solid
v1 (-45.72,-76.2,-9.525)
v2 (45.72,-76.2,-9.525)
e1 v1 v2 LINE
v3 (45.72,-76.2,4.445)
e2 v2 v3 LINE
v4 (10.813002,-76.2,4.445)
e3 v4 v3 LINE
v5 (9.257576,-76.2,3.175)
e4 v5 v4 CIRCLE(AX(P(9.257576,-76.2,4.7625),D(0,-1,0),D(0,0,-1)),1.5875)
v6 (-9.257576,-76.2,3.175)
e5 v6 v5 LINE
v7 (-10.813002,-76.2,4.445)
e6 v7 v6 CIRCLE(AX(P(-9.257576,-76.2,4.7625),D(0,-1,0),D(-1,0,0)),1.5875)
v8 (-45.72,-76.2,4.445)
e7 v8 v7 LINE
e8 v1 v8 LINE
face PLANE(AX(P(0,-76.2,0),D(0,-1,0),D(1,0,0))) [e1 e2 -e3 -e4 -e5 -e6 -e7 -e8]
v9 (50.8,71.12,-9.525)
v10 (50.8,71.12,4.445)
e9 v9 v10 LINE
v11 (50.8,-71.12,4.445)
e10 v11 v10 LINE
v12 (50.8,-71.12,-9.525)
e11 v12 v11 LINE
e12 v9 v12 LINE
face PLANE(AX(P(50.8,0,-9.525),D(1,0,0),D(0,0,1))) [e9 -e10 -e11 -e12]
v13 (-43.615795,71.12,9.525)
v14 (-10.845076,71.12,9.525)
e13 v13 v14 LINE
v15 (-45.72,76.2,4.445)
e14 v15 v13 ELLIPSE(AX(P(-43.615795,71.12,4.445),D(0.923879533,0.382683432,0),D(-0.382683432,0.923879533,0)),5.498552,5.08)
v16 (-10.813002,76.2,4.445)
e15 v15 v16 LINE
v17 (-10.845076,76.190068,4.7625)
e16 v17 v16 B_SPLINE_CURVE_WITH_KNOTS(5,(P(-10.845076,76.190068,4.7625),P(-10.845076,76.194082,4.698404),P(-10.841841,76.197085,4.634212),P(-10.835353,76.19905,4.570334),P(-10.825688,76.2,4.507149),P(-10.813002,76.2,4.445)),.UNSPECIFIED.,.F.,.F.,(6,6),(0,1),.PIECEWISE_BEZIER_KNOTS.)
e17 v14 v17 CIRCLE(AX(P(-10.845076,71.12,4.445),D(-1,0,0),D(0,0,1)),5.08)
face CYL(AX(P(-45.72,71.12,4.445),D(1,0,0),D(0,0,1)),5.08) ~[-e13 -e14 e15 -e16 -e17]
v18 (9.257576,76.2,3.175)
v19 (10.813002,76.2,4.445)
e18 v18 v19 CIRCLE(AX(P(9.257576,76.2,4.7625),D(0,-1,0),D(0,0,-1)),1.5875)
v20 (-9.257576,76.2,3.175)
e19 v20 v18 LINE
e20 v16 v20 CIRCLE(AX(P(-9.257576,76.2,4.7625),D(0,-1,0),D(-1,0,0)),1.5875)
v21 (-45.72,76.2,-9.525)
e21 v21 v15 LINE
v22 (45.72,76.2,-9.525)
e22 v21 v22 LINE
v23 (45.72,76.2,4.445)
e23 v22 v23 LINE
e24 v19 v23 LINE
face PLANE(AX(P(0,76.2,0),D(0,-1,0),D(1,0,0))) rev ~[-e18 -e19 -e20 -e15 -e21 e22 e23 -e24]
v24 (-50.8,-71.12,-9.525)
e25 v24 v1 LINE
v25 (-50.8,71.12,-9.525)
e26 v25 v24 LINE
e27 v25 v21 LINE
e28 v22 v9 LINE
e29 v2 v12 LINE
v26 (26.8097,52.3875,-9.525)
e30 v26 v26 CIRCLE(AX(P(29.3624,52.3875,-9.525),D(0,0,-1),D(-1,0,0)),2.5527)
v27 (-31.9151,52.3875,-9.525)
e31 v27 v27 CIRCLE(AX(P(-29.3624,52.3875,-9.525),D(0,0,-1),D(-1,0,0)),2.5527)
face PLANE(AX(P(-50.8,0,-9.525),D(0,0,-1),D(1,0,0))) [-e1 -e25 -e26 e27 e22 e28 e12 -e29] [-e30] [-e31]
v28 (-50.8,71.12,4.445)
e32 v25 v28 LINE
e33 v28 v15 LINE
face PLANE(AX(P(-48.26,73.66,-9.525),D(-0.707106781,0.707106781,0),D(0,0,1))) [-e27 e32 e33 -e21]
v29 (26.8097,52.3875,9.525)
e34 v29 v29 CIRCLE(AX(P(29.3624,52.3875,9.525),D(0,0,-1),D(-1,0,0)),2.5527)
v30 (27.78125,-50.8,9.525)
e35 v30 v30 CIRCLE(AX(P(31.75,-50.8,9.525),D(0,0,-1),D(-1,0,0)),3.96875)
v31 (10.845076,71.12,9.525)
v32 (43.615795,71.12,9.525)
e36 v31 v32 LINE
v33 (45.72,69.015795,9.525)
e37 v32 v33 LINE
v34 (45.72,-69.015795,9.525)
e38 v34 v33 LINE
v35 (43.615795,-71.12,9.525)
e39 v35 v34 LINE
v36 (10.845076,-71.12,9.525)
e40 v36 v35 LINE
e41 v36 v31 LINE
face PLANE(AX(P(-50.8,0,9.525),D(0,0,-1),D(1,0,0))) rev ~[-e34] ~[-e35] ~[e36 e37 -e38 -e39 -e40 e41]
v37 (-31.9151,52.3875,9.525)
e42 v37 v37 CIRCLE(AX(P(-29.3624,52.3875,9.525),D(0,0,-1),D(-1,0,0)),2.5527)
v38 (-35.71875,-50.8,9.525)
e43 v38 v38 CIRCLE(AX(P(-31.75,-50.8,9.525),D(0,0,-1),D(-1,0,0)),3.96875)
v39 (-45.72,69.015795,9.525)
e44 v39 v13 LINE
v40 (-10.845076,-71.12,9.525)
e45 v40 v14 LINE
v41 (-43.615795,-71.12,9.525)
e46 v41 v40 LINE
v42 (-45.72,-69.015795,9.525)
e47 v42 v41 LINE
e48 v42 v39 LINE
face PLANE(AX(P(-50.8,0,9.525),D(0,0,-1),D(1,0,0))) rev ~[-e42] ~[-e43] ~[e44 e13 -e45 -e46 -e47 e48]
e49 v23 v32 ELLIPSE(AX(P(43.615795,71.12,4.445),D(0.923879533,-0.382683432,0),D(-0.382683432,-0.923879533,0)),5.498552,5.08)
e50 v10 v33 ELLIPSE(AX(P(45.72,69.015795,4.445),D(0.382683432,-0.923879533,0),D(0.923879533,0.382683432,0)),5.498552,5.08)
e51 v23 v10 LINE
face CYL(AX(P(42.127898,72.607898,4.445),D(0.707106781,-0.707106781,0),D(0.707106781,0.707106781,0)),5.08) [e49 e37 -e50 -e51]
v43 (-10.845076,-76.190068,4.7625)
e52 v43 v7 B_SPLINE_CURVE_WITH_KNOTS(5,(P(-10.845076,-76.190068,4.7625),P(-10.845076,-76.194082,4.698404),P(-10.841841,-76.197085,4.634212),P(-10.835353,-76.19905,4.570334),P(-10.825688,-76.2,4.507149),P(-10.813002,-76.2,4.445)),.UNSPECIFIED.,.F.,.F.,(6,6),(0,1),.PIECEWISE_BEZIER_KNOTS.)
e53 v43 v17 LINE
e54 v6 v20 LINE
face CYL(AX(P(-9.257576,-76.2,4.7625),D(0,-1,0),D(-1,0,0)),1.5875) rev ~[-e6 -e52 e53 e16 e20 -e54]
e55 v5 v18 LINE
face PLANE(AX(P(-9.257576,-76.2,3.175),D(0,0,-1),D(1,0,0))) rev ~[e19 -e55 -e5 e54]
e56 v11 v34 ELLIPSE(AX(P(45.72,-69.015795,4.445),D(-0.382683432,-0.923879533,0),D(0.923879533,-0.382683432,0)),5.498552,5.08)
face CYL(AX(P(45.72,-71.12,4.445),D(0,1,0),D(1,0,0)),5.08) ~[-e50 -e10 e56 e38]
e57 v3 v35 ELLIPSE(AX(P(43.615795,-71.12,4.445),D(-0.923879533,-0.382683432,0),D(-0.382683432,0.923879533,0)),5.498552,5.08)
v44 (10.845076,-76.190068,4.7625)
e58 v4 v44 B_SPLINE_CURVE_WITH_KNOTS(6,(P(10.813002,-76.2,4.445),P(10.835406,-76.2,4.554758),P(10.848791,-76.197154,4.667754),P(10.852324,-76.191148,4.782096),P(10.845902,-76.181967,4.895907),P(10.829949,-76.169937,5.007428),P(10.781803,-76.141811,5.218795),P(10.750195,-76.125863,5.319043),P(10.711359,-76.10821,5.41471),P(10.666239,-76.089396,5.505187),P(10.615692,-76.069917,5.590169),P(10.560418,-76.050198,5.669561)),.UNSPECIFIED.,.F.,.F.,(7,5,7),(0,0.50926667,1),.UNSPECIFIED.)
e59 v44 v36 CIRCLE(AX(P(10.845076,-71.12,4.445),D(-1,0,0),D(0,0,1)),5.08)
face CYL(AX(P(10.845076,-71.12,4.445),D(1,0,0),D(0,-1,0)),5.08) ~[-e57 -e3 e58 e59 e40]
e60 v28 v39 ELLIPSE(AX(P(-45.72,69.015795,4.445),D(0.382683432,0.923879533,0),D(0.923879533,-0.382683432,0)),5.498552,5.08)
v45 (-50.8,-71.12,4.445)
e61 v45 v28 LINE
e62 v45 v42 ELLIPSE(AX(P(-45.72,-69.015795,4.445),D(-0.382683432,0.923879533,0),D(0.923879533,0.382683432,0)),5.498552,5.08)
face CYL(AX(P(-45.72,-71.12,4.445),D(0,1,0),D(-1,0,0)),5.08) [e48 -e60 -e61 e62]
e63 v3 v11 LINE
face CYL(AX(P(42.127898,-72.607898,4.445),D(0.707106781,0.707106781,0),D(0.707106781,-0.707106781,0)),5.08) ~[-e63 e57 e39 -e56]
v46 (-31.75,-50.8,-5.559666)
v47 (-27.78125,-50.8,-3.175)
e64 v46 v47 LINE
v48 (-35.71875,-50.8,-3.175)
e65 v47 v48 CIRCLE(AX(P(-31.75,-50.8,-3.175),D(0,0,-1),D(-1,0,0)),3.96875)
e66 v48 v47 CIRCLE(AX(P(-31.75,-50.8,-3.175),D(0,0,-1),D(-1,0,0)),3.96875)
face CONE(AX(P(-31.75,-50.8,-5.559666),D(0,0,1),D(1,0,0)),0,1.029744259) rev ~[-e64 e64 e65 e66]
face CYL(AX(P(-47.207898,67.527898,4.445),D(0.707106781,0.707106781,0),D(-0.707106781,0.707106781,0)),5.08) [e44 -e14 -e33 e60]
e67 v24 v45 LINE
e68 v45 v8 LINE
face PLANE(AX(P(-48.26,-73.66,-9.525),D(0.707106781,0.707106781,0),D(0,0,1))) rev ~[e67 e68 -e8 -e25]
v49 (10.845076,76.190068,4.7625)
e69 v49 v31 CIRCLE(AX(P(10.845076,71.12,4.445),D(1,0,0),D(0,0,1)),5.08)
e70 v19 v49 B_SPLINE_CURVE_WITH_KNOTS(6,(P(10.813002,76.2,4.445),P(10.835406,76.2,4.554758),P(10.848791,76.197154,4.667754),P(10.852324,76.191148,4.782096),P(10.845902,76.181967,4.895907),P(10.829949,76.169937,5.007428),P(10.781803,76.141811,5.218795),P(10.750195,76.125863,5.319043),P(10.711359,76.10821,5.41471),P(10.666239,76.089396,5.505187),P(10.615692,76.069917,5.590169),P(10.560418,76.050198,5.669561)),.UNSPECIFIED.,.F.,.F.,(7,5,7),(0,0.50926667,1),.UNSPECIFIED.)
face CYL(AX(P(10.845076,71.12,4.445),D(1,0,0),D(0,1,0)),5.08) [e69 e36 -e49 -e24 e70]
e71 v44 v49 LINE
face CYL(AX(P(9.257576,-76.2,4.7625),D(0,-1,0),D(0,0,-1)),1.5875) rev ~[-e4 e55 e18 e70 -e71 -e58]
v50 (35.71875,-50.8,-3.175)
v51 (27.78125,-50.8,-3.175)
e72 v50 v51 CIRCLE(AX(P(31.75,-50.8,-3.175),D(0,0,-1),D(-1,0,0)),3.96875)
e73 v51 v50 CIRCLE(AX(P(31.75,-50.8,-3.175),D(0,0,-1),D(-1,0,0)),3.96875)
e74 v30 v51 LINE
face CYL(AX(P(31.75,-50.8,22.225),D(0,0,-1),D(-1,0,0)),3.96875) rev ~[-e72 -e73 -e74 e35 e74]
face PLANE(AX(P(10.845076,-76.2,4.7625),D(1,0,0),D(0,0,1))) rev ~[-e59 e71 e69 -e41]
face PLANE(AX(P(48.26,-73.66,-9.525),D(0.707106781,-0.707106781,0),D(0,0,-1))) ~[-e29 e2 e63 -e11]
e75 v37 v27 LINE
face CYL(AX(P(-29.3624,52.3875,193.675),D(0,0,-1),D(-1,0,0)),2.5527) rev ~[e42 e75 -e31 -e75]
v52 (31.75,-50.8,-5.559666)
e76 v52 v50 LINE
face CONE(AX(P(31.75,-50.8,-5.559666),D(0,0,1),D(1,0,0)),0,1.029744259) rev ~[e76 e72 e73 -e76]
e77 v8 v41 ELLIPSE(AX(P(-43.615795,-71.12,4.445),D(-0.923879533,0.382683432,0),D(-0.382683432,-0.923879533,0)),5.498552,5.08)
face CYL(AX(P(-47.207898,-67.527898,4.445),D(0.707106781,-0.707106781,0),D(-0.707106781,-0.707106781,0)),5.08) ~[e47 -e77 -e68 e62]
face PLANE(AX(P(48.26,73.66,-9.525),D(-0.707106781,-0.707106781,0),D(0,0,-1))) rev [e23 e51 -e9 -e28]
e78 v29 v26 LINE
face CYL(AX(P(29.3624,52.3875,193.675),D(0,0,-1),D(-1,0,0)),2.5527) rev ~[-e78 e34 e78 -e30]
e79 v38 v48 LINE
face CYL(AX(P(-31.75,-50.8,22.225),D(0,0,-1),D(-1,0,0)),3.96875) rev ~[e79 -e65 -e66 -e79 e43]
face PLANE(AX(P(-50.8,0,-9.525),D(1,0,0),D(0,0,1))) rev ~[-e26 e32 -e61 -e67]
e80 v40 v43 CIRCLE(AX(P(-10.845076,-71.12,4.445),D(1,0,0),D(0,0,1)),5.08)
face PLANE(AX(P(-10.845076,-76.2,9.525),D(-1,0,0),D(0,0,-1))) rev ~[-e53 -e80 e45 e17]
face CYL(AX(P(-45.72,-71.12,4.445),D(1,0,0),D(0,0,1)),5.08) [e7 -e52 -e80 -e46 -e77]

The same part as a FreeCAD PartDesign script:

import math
import FreeCAD as App
import Part
import Sketcher
Q = App.Units.Quantity


def edges_at(feature, points):
    """Names of the edges that pass closest to the given points."""
    edges = feature.Shape.Edges
    near = lambda p: min(range(len(edges)), key=lambda i: edges[i].distToShape(Part.Vertex(*p))[0])
    return sorted({f"Edge{near(p) + 1}" for p in points})


def add_polygon(sketch, points):
    """Adds a closed chain of lines whose ends are joined by coincident constraints."""
    first, n = sketch.GeometryCount, len(points)
    for a, b in zip(points, points[1:] + points[:1]):
        sketch.addGeometry(Part.LineSegment(App.Vector(*a, 0), App.Vector(*b, 0)), False)
    for i in range(n):
        sketch.addConstraint(Sketcher.Constraint("Coincident", first + i, 2, first + (i + 1) % n, 1))

doc = App.newDocument("Part")
body = doc.addObject("PartDesign::Body", "Body")

# Sketch on XZ plane
sketch1 = doc.addObject("Sketcher::SketchObject", "Sketch")
body.addObject(sketch1)
sketch1.AttachmentSupport = (doc.XZ_Plane, [""])
sketch1.MapMode = "FlatFace"
add_polygon(sketch1, [(-51, 10), (-51, -10), (51, -10), (51, 10)])  # lines 0-3
sketch1.addConstraint(Sketcher.Constraint("Vertical", 0))
sketch1.addConstraint(Sketcher.Constraint("Horizontal", 1))
sketch1.addConstraint(Sketcher.Constraint("Vertical", 2))
sketch1.addConstraint(Sketcher.Constraint("Horizontal", 3))
sketch1.addConstraint(Sketcher.Constraint("Symmetric", 0, 2, 2, 2, -1, 1))
sketch1.addConstraint(Sketcher.Constraint("DistanceX", 1, 1, 1, 2, Q("4 in")))
sketch1.addConstraint(Sketcher.Constraint("DistanceY", 0, 2, 0, 1, Q("0.75 in")))
pad1 = doc.addObject("PartDesign::Pad", "Pad")
body.addObject(pad1)
pad1.Profile = sketch1
pad1.Length = Q("6 in")
pad1.Midplane = True

# Sketch on XY plane
sketch2 = doc.addObject("Sketcher::SketchObject", "Sketch001")
body.addObject(sketch2)
sketch2.AttachmentSupport = (doc.XY_Plane, [""])
sketch2.MapMode = "FlatFace"
sketch2.AttachmentOffset = App.Placement(App.Vector(0, 0, 0.375 * 25.4), App.Rotation())
sketch2.addGeometry(Part.Circle(App.Vector(-31.8, -50.8, 0), App.Vector(0, 0, 1), 4), False)
sketch2.addGeometry(Part.Circle(App.Vector(31.8, -50.8, 0), App.Vector(0, 0, 1), 4), False)
sketch2.addConstraint(Sketcher.Constraint("Equal", 0, 1))
sketch2.addConstraint(Sketcher.Constraint("Symmetric", 0, 3, 1, 3, -2))
sketch2.addConstraint(Sketcher.Constraint("Diameter", 0, Q("0.3125 in")))
sketch2.addConstraint(Sketcher.Constraint("DistanceY", 0, 3, -1, 1, Q("2 in")))
sketch2.addConstraint(Sketcher.Constraint("DistanceX", 0, 3, 1, 3, Q("2.5 in")))
doc.recompute()
hole = doc.addObject("PartDesign::Hole", "Hole")
body.addObject(hole)
hole.Profile = sketch2
hole.ThreadType = "None"
hole.Diameter = Q("0.3125 in")
hole.DepthType = "Dimension"
hole.Depth = Q("0.5 in")
hole.DrillPoint = "Angled"
hole.DrillPointAngle = 118

# Sketch on XZ plane
sketch3 = doc.addObject("Sketcher::SketchObject", "Sketch002")
body.addObject(sketch3)
sketch3.AttachmentSupport = (doc.XZ_Plane, [""])
sketch3.MapMode = "FlatFace"
sketch3.AttachmentOffset = App.Placement(App.Vector(0, 0, 3 * 25.4), App.Rotation())
sketch3.addGeometry(Part.LineSegment(App.Vector(10.8, 9.5, 0), App.Vector(-10.8, 9.5, 0)), False)
sketch3.addGeometry(Part.LineSegment(App.Vector(-10.8, 9.5, 0), App.Vector(-10.8, 4.8, 0)), False)
sketch3.addGeometry(Part.ArcOfCircle(Part.Circle(App.Vector(-9.3, 4.8, 0), App.Vector(0, 0, 1), 1.6), math.radians(180), math.radians(270)), False)
sketch3.addGeometry(Part.LineSegment(App.Vector(-9.3, 3.2, 0), App.Vector(9.3, 3.2, 0)), False)
sketch3.addGeometry(Part.ArcOfCircle(Part.Circle(App.Vector(9.3, 4.8, 0), App.Vector(0, 0, 1), 1.6), math.radians(-90), math.radians(0)), False)
sketch3.addGeometry(Part.LineSegment(App.Vector(10.8, 4.8, 0), App.Vector(10.8, 9.5, 0)), False)
sketch3.addConstraint(Sketcher.Constraint("Coincident", 0, 2, 1, 1))
sketch3.addConstraint(Sketcher.Constraint("Tangent", 1, 2, 2, 1))
sketch3.addConstraint(Sketcher.Constraint("Tangent", 2, 2, 3, 1))
sketch3.addConstraint(Sketcher.Constraint("Tangent", 3, 2, 4, 1))
sketch3.addConstraint(Sketcher.Constraint("Tangent", 4, 2, 5, 1))
sketch3.addConstraint(Sketcher.Constraint("Coincident", 5, 2, 0, 1))
sketch3.addConstraint(Sketcher.Constraint("Horizontal", 0))
sketch3.addConstraint(Sketcher.Constraint("Vertical", 1))
sketch3.addConstraint(Sketcher.Constraint("Horizontal", 3))
sketch3.addConstraint(Sketcher.Constraint("Vertical", 5))
sketch3.addConstraint(Sketcher.Constraint("Equal", 2, 4))
sketch3.addConstraint(Sketcher.Constraint("Radius", 2, Q("0.0625 in")))
sketch3.addConstraint(Sketcher.Constraint("DistanceY", 1, 2, 1, 1, Q("0.1875 in")))
sketch3.addConstraint(Sketcher.Constraint("DistanceY", -1, 1, 2, 3, Q("0.1875 in")))
sketch3.addConstraint(Sketcher.Constraint("DistanceX", 0, 2, 0, 1, Q("21.690153 mm")))
sketch3.addConstraint(Sketcher.Constraint("DistanceX", 2, 3, -1, 1, Q("9.257576 mm")))
pocket1 = doc.addObject("PartDesign::Pocket", "Pocket")
body.addObject(pocket1)
pocket1.Profile = sketch3
pocket1.Type = "ThroughAll"

# Sketch on XY plane
sketch4 = doc.addObject("Sketcher::SketchObject", "Sketch003")
body.addObject(sketch4)
sketch4.AttachmentSupport = (doc.XY_Plane, [""])
sketch4.MapMode = "FlatFace"
sketch4.AttachmentOffset = App.Placement(App.Vector(0, 0, 0.375 * 25.4), App.Rotation())
sketch4.addGeometry(Part.Circle(App.Vector(-29.4, 52.4, 0), App.Vector(0, 0, 1), 2.6), False)
sketch4.addGeometry(Part.Circle(App.Vector(29.4, 52.4, 0), App.Vector(0, 0, 1), 2.6), False)
sketch4.addConstraint(Sketcher.Constraint("Equal", 0, 1))
sketch4.addConstraint(Sketcher.Constraint("Symmetric", 0, 3, 1, 3, -2))
sketch4.addConstraint(Sketcher.Constraint("Diameter", 0, Q("0.201 in")))
sketch4.addConstraint(Sketcher.Constraint("DistanceX", 0, 3, -1, 1, Q("1.156 in")))
sketch4.addConstraint(Sketcher.Constraint("DistanceY", -1, 1, 0, 3, Q("2.0625 in")))
doc.recompute()
hole2 = doc.addObject("PartDesign::Hole", "Hole001")
body.addObject(hole2)
hole2.Profile = sketch4
hole2.ThreadType = "None"
hole2.Diameter = Q("0.201 in")
hole2.DepthType = "ThroughAll"
doc.recompute()

chamfer = doc.addObject("PartDesign::Chamfer", "Chamfer")
body.addObject(chamfer)
chamfer.Base = (hole2, edges_at(hole2, [
    (50.8, 76.2, 0),
    (50.8, -76.2, 0),
    (-50.8, -76.2, 0),
    (-50.8, 76.2, 0),
]))
chamfer.Size = Q("0.2 in")
doc.recompute()

fillet = doc.addObject("PartDesign::Fillet", "Fillet")
body.addObject(fillet)
fillet.Base = (chamfer, edges_at(chamfer, [
    (-48.26, 73.66, 9.525),
    (-28.283, 76.2, 9.525),
    (-48.26, -73.66, 9.525),
    (48.26, -73.66, 9.525),
    (48.26, 73.66, 9.525),
    (50.8, 0, 9.525),
    (-50.8, 0, 9.525),
    (-28.283, -76.2, 9.525),
    (28.283, -76.2, 9.525),
    (28.283, 76.2, 9.525),
]))
fillet.Radius = Q("0.2 in")

doc.recompute()
